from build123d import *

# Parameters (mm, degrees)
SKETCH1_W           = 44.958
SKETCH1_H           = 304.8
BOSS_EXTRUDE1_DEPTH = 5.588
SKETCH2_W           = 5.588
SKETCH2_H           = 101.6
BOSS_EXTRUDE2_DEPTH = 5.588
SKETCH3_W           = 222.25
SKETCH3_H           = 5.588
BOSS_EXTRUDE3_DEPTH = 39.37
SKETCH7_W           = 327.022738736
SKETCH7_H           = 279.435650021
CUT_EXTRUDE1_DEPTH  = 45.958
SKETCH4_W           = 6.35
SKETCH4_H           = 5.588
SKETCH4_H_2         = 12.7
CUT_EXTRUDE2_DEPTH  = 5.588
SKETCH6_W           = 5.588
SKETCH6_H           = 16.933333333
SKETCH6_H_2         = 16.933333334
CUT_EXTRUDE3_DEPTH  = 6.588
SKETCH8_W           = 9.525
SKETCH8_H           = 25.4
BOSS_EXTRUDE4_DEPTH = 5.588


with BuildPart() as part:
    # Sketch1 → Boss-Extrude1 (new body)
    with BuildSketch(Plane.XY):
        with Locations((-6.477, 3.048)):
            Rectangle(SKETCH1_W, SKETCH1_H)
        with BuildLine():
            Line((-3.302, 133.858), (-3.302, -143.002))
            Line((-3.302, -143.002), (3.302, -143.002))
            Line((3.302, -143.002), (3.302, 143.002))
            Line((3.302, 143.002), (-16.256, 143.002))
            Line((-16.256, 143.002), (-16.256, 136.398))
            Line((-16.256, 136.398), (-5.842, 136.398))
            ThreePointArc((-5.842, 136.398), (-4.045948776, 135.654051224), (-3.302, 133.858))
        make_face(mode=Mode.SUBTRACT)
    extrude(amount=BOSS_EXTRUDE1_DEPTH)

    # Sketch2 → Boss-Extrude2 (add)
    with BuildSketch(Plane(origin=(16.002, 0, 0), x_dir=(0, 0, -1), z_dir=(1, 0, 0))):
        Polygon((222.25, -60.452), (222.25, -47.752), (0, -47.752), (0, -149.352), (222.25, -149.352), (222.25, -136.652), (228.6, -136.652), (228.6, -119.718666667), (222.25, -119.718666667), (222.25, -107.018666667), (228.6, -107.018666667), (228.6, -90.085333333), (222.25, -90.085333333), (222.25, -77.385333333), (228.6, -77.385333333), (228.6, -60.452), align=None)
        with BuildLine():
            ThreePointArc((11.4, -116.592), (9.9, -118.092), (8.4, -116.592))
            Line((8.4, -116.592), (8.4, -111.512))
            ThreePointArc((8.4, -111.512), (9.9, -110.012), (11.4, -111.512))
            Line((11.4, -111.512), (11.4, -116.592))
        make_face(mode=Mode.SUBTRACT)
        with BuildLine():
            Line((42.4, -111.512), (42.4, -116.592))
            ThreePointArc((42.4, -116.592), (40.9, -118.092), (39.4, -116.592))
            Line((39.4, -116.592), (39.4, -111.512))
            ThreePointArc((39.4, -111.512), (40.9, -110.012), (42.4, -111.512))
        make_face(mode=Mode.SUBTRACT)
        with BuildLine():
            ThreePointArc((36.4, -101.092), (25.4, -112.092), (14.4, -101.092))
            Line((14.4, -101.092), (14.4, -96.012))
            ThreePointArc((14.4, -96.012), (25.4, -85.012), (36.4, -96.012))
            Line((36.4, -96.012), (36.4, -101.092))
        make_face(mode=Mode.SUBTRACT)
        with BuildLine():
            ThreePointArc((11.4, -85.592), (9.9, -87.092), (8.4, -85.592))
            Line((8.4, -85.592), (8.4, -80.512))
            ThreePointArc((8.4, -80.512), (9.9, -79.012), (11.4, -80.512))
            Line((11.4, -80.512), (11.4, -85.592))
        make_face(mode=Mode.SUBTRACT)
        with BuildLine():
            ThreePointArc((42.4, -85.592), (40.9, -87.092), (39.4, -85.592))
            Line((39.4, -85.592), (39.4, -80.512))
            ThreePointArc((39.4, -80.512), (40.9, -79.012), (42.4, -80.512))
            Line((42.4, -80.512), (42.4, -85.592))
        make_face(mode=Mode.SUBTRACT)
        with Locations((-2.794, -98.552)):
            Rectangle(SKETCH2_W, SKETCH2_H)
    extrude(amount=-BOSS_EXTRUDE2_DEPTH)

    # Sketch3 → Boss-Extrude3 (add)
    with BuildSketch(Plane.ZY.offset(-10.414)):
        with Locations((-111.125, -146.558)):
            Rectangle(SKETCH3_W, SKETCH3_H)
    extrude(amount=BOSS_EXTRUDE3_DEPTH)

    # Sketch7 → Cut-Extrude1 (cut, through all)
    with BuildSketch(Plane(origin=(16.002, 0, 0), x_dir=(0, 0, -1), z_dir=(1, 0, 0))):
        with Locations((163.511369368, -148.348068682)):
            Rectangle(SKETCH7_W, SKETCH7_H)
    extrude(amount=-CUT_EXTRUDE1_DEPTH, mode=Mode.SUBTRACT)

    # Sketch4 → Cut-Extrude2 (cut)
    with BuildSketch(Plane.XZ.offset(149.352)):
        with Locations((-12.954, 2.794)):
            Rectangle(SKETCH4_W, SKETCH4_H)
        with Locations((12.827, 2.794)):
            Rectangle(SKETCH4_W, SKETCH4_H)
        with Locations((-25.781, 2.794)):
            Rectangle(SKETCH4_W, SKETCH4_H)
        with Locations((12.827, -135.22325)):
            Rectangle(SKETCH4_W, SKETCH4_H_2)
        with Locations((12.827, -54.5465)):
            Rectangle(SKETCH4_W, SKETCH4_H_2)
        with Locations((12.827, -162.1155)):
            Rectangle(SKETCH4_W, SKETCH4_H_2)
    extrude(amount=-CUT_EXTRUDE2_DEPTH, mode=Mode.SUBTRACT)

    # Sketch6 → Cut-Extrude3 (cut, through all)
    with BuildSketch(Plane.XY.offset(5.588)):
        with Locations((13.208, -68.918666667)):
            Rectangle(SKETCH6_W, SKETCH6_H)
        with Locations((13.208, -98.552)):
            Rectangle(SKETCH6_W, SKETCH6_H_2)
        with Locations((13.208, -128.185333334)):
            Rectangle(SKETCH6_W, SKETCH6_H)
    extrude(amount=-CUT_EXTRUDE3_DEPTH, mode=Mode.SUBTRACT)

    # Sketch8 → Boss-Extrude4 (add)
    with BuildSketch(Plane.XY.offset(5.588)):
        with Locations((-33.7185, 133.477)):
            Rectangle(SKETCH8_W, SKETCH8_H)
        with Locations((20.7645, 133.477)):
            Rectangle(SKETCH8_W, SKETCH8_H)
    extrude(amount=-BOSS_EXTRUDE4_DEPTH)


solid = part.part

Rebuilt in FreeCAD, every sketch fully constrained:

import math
import FreeCAD as App
import Part
import Sketcher

V = App.Vector
Q = App.Units.Quantity

doc = App.newDocument("Part")
body = doc.addObject("PartDesign::Body", "Body")

# Sketch on XY plane
sketch1 = doc.addObject("Sketcher::SketchObject", "Sketch")
body.addObject(sketch1)
sketch1.AttachmentSupport = (doc.XY_Plane, [""])
sketch1.MapMode = "FlatFace"
sketch1.addGeometry([
    Part.LineSegment(V(-29, 155.4, 0), V(-29, -149.4, 0)),  # 0
    Part.LineSegment(V(-29, -149.4, 0), V(16, -149.4, 0)),  # 1
    Part.LineSegment(V(16, -149.4, 0), V(16, 155.4, 0)),  # 2
    Part.LineSegment(V(16, 155.4, 0), V(-29, 155.4, 0)),  # 3
    Part.LineSegment(V(-3.3, -143, 0), V(-3.3, 133.9, 0)),  # 4
    Part.ArcOfCircle(Part.Circle(V(-5.8, 133.9, 0), V(0, 0, 1), 2.5), math.radians(0), math.radians(90)),  # 5
    Part.LineSegment(V(-5.8, 136.4, 0), V(-16.3, 136.4, 0)),  # 6
    Part.LineSegment(V(-16.3, 136.4, 0), V(-16.3, 143, 0)),  # 7
    Part.LineSegment(V(-16.3, 143, 0), V(3.3, 143, 0)),  # 8
    Part.LineSegment(V(3.3, 143, 0), V(3.3, -143, 0)),  # 9
    Part.LineSegment(V(3.3, -143, 0), V(-3.3, -143, 0)),  # 10
], False)
sketch1.addConstraint([
    Sketcher.Constraint("Coincident", 0, 2, 1, 1),
    Sketcher.Constraint("Coincident", 1, 2, 2, 1),
    Sketcher.Constraint("Coincident", 2, 2, 3, 1),
    Sketcher.Constraint("Coincident", 3, 2, 0, 1),
    Sketcher.Constraint("Tangent", 4, 2, 5, 1),
    Sketcher.Constraint("Tangent", 5, 2, 6, 1),
    Sketcher.Constraint("Coincident", 6, 2, 7, 1),
    Sketcher.Constraint("Coincident", 7, 2, 8, 1),
    Sketcher.Constraint("Coincident", 8, 2, 9, 1),
    Sketcher.Constraint("Coincident", 9, 2, 10, 1),
    Sketcher.Constraint("Coincident", 10, 2, 4, 1),
    Sketcher.Constraint("Vertical", 0),
    Sketcher.Constraint("Horizontal", 1),
    Sketcher.Constraint("Vertical", 2),
    Sketcher.Constraint("Horizontal", 3),
    Sketcher.Constraint("Vertical", 4),
    Sketcher.Constraint("Horizontal", 6),
    Sketcher.Constraint("Vertical", 7),
    Sketcher.Constraint("Horizontal", 8),
    Sketcher.Constraint("Vertical", 9),
    Sketcher.Constraint("Horizontal", 10),
    Sketcher.Constraint("Symmetric", 8, 2, 10, 2, -1, 1),
    Sketcher.Constraint("Equal", 10, 7),
    Sketcher.Constraint("Radius", 5, Q("0.1 in")),
    Sketcher.Constraint("DistanceY", 0, 2, 0, 1, Q("12 in")),
    Sketcher.Constraint("DistanceY", 4, 1, 4, 2, Q("10.9 in")),
    Sketcher.Constraint("DistanceX", 1, 1, 1, 2, Q("1.77 in")),
    Sketcher.Constraint("DistanceX", 6, 2, 6, 1, Q("0.41 in")),
    Sketcher.Constraint("DistanceX", 8, 1, 8, 2, Q("0.77 in")),
    Sketcher.Constraint("DistanceX", 3, 2, 6, 2, Q("0.5 in")),
    Sketcher.Constraint("DistanceY", 0, 2, -1, 1, Q("5.88 in")),
])
pad1 = doc.addObject("PartDesign::Pad", "Pad")
body.addObject(pad1)
pad1.Profile = sketch1
pad1.Length = Q("0.22 in")

# Sketch on YZ plane
sketch2 = doc.addObject("Sketcher::SketchObject", "Sketch001")
body.addObject(sketch2)
sketch2.AttachmentSupport = (doc.YZ_Plane, [""])
sketch2.MapMode = "FlatFace"
sketch2.AttachmentOffset = App.Placement(V(0, 0, 0.63 * 25.4), App.Rotation())
sketch2.addGeometry([
    Part.LineSegment(V(-60.5, -222.2, 0), V(-47.8, -222.2, 0)),  # 0
    Part.LineSegment(V(-47.8, -222.2, 0), V(-47.8, 5.6, 0)),  # 1
    Part.LineSegment(V(-47.8, 5.6, 0), V(-149.4, 5.6, 0)),  # 2
    Part.LineSegment(V(-149.4, 5.6, 0), V(-149.4, -222.2, 0)),  # 3
    Part.LineSegment(V(-149.4, -222.2, 0), V(-136.7, -222.2, 0)),  # 4
    Part.LineSegment(V(-136.7, -222.2, 0), V(-136.7, -228.6, 0)),  # 5
    Part.LineSegment(V(-136.7, -228.6, 0), V(-119.7, -228.6, 0)),  # 6
    Part.LineSegment(V(-119.7, -228.6, 0), V(-119.7, -222.2, 0)),  # 7
    Part.LineSegment(V(-119.7, -222.2, 0), V(-107, -222.2, 0)),  # 8
    Part.LineSegment(V(-107, -222.2, 0), V(-107, -228.6, 0)),  # 9
    Part.LineSegment(V(-107, -228.6, 0), V(-90.1, -228.6, 0)),  # 10
    Part.LineSegment(V(-90.1, -228.6, 0), V(-90.1, -222.2, 0)),  # 11
    Part.LineSegment(V(-90.1, -222.2, 0), V(-77.4, -222.2, 0)),  # 12
    Part.LineSegment(V(-77.4, -222.2, 0), V(-77.4, -228.6, 0)),  # 13
    Part.LineSegment(V(-77.4, -228.6, 0), V(-60.5, -228.6, 0)),  # 14
    Part.LineSegment(V(-60.5, -228.6, 0), V(-60.5, -222.2, 0)),  # 15
    Part.LineSegment(V(-111.5, -11.4, 0), V(-116.6, -11.4, 0)),  # 16
    Part.ArcOfCircle(Part.Circle(V(-116.6, -9.9, 0), V(0, 0, 1), 1.5), math.radians(90), math.radians(270)),  # 17
    Part.LineSegment(V(-116.6, -8.4, 0), V(-111.5, -8.4, 0)),  # 18
    Part.ArcOfCircle(Part.Circle(V(-111.5, -9.9, 0), V(0, 0, 1), 1.5), math.radians(-90), math.radians(90)),  # 19
    Part.ArcOfCircle(Part.Circle(V(-111.5, -40.9, 0), V(0, 0, 1), 1.5), math.radians(-90), math.radians(90)),  # 20
    Part.LineSegment(V(-111.5, -42.4, 0), V(-116.6, -42.4, 0)),  # 21
    Part.ArcOfCircle(Part.Circle(V(-116.6, -40.9, 0), V(0, 0, 1), 1.5), math.radians(90), math.radians(270)),  # 22
    Part.LineSegment(V(-116.6, -39.4, 0), V(-111.5, -39.4, 0)),  # 23
    Part.LineSegment(V(-96, -36.4, 0), V(-101.1, -36.4, 0)),  # 24
    Part.ArcOfCircle(Part.Circle(V(-101.1, -25.4, 0), V(0, 0, 1), 11), math.radians(90), math.radians(270)),  # 25
    Part.LineSegment(V(-101.1, -14.4, 0), V(-96, -14.4, 0)),  # 26
    Part.ArcOfCircle(Part.Circle(V(-96, -25.4, 0), V(0, 0, 1), 11), math.radians(-90), math.radians(90)),  # 27
    Part.LineSegment(V(-80.5, -11.4, 0), V(-85.6, -11.4, 0)),  # 28
    Part.ArcOfCircle(Part.Circle(V(-85.6, -9.9, 0), V(0, 0, 1), 1.5), math.radians(90), math.radians(270)),  # 29
    Part.LineSegment(V(-85.6, -8.4, 0), V(-80.5, -8.4, 0)),  # 30
    Part.ArcOfCircle(Part.Circle(V(-80.5, -9.9, 0), V(0, 0, 1), 1.5), math.radians(-90), math.radians(90)),  # 31
    Part.LineSegment(V(-80.5, -42.4, 0), V(-85.6, -42.4, 0)),  # 32
    Part.ArcOfCircle(Part.Circle(V(-85.6, -40.9, 0), V(0, 0, 1), 1.5), math.radians(90), math.radians(270)),  # 33
    Part.LineSegment(V(-85.6, -39.4, 0), V(-80.5, -39.4, 0)),  # 34
    Part.ArcOfCircle(Part.Circle(V(-80.5, -40.9, 0), V(0, 0, 1), 1.5), math.radians(-90), math.radians(90)),  # 35
], False)
sketch2.addConstraint([
    Sketcher.Constraint("Coincident", 0, 2, 1, 1),
    Sketcher.Constraint("Coincident", 1, 2, 2, 1),
    Sketcher.Constraint("Coincident", 2, 2, 3, 1),
    Sketcher.Constraint("Coincident", 3, 2, 4, 1),
    Sketcher.Constraint("Coincident", 4, 2, 5, 1),
    Sketcher.Constraint("Coincident", 5, 2, 6, 1),
    Sketcher.Constraint("Coincident", 6, 2, 7, 1),
    Sketcher.Constraint("Coincident", 7, 2, 8, 1),
    Sketcher.Constraint("Coincident", 8, 2, 9, 1),
    Sketcher.Constraint("Coincident", 9, 2, 10, 1),
    Sketcher.Constraint("Coincident", 10, 2, 11, 1),
    Sketcher.Constraint("Coincident", 11, 2, 12, 1),
    Sketcher.Constraint("Coincident", 12, 2, 13, 1),
    Sketcher.Constraint("Coincident", 13, 2, 14, 1),
    Sketcher.Constraint("Coincident", 14, 2, 15, 1),
    Sketcher.Constraint("Coincident", 15, 2, 0, 1),
    Sketcher.Constraint("Tangent", 16, 2, 17, 2),
    Sketcher.Constraint("Tangent", 17, 1, 18, 1),
    Sketcher.Constraint("Tangent", 18, 2, 19, 2),
    Sketcher.Constraint("Tangent", 19, 1, 16, 1),
    Sketcher.Constraint("Tangent", 20, 1, 21, 1),
    Sketcher.Constraint("Tangent", 21, 2, 22, 2),
    Sketcher.Constraint("Tangent", 22, 1, 23, 1),
    Sketcher.Constraint("Tangent", 23, 2, 20, 2),
    Sketcher.Constraint("Tangent", 24, 2, 25, 2),
    Sketcher.Constraint("Tangent", 25, 1, 26, 1),
    Sketcher.Constraint("Tangent", 26, 2, 27, 2),
    Sketcher.Constraint("Tangent", 27, 1, 24, 1),
    Sketcher.Constraint("Tangent", 28, 2, 29, 2),
    Sketcher.Constraint("Tangent", 29, 1, 30, 1),
    Sketcher.Constraint("Tangent", 30, 2, 31, 2),
    Sketcher.Constraint("Tangent", 31, 1, 28, 1),
    Sketcher.Constraint("Tangent", 32, 2, 33, 2),
    Sketcher.Constraint("Tangent", 33, 1, 34, 1),
    Sketcher.Constraint("Tangent", 34, 2, 35, 2),
    Sketcher.Constraint("Tangent", 35, 1, 32, 1),
    Sketcher.Constraint("Horizontal", 0),
    Sketcher.Constraint("Vertical", 1),
    Sketcher.Constraint("Horizontal", 2),
    Sketcher.Constraint("Vertical", 3),
    Sketcher.Constraint("Horizontal", 4),
    Sketcher.Constraint("Vertical", 5),
    Sketcher.Constraint("Horizontal", 6),
    Sketcher.Constraint("Vertical", 7),
    Sketcher.Constraint("Horizontal", 8),
    Sketcher.Constraint("Vertical", 9),
    Sketcher.Constraint("Horizontal", 10),
    Sketcher.Constraint("Vertical", 11),
    Sketcher.Constraint("Horizontal", 12),
    Sketcher.Constraint("Vertical", 13),
    Sketcher.Constraint("Horizontal", 14),
    Sketcher.Constraint("Vertical", 15),
    Sketcher.Constraint("Horizontal", 16),
    Sketcher.Constraint("Horizontal", 18),
    Sketcher.Constraint("Horizontal", 21),
    Sketcher.Constraint("Horizontal", 23),
    Sketcher.Constraint("Horizontal", 24),
    Sketcher.Constraint("Horizontal", 26),
    Sketcher.Constraint("Horizontal", 28),
    Sketcher.Constraint("Horizontal", 30),
    Sketcher.Constraint("Horizontal", 32),
    Sketcher.Constraint("Horizontal", 34),
    Sketcher.Constraint("Equal", 19, 20),
    Sketcher.Constraint("Equal", 22, 29),
    Sketcher.Constraint("Equal", 31, 33),
    Sketcher.Constraint("Horizontal", 19, 3, 29, 3),
    Sketcher.Constraint("Horizontal", 22, 3, 33, 3),
    Sketcher.Constraint("Horizontal", 0, 2, 3, 2),
    Sketcher.Constraint("Horizontal", 4, 2, 7, 2),
    Sketcher.Constraint("Horizontal", 6, 2, 9, 2),
    Sketcher.Constraint("Horizontal", 8, 2, 11, 2),
    Sketcher.Constraint("Horizontal", 10, 2, 13, 2),
    Sketcher.Constraint("Vertical", 19, 3, 20, 3),
    Sketcher.Constraint("Vertical", 17, 3, 22, 3),
    Sketcher.Constraint("Vertical", 29, 3, 33, 3),
    Sketcher.Constraint("Vertical", 31, 3, 35, 3),
    Sketcher.Constraint("Equal", 0, 4),
    Sketcher.Constraint("Equal", 4, 8),
    Sketcher.Constraint("Equal", 6, 10),
    Sketcher.Constraint("Equal", 8, 12),
    Sketcher.Constraint("Equal", 10, 14),
    Sketcher.Constraint("Equal", 23, 24),
    Sketcher.Constraint("Equal", 26, 28),
    Sketcher.Constraint("DistanceX", 2, 2, 2, 1, Q("4 in")),
    Sketcher.Constraint("DistanceX", 0, 1, 0, 2, Q("0.5 in")),
    Sketcher.Constraint("DistanceX", 16, 2, 16, 1, Q("0.2 in")),
    Sketcher.Constraint("DistanceY", 25, 3, -1, 1, Q("1 in")),
    Sketcher.Constraint("DistanceY", 5, 2, -1, 1, Q("9 in")),
    Sketcher.Constraint("DistanceY", 1, 1, 1, 2, Q("8.97 in")),
    Sketcher.Constraint("DistanceY", 5, 2, 5, 1, Q("0.25 in")),
    Sketcher.Constraint("DistanceX", 27, 3, 0, 2, Q("1.9 in")),
    Sketcher.Constraint("DistanceX", 25, 3, -1, 1, Q("3.98 in")),
    Sketcher.Constraint("Radius", 17, 1.5),
    Sketcher.Constraint("Radius", 25, 11.0),
    Sketcher.Constraint("DistanceX", 17, 3, -1, 1, 116.592),
    Sketcher.Constraint("DistanceY", 17, 3, -1, 1, 9.9),
    Sketcher.Constraint("DistanceY", 20, 3, -1, 1, 40.9),
    Sketcher.Constraint("DistanceX", 29, 3, -1, 1, 85.592),
])
pad2 = doc.addObject("PartDesign::Pad", "Pad001")
body.addObject(pad2)
pad2.Profile = sketch2
pad2.Length = Q("0.22 in")
pad2.Reversed = True

# Sketch on YZ plane
sketch3 = doc.addObject("Sketcher::SketchObject", "Sketch002")
body.addObject(sketch3)
sketch3.AttachmentSupport = (doc.YZ_Plane, [""])
sketch3.MapMode = "FlatFace"
sketch3.AttachmentOffset = App.Placement(V(0, 0, 0.41 * 25.4), App.Rotation())
sketch3.addGeometry([
    Part.LineSegment(V(-144, -222, 0), V(-149, -222, 0)),
    Part.LineSegment(V(-149, -222, 0), V(-149, 0, 0)),
    Part.LineSegment(V(-149, 0, 0), V(-144, 0, 0)),
    Part.LineSegment(V(-144, 0, 0), V(-144, -222, 0)),
], False)
sketch3.addConstraint([
    Sketcher.Constraint("Coincident", 0, 2, 1, 1),
    Sketcher.Constraint("Coincident", 1, 2, 2, 1),
    Sketcher.Constraint("Coincident", 2, 2, 3, 1),
    Sketcher.Constraint("Coincident", 3, 2, 0, 1),
    Sketcher.Constraint("Horizontal", 0),
    Sketcher.Constraint("Vertical", 1),
    Sketcher.Constraint("Horizontal", 2),
    Sketcher.Constraint("Vertical", 3),
    Sketcher.Constraint("PointOnObject", 1, 2, -1),
    Sketcher.Constraint("DistanceX", 0, 2, 0, 1, Q("0.22 in")),
    Sketcher.Constraint("DistanceY", 1, 1, 1, 2, Q("8.75 in")),
    Sketcher.Constraint("DistanceX", 0, 2, -1, 1, Q("5.88 in")),
])
pad3 = doc.addObject("PartDesign::Pad", "Pad002")
body.addObject(pad3)
pad3.Profile = sketch3
pad3.Length = Q("1.55 in")
pad3.Reversed = True

# Sketch on YZ plane
sketch4 = doc.addObject("Sketcher::SketchObject", "Sketch003")
body.addObject(sketch4)
sketch4.AttachmentSupport = (doc.YZ_Plane, [""])
sketch4.MapMode = "FlatFace"
sketch4.AttachmentOffset = App.Placement(V(0, 0, 0.63 * 25.4), App.Rotation())
sketch4.addGeometry([
    Part.LineSegment(V(-9, 0, 0), V(-288, 0, 0)),
    Part.LineSegment(V(-288, 0, 0), V(-288, -327, 0)),
    Part.LineSegment(V(-288, -327, 0), V(-9, -327, 0)),
    Part.LineSegment(V(-9, -327, 0), V(-9, 0, 0)),
], False)
sketch4.addConstraint([
    Sketcher.Constraint("Coincident", 0, 2, 1, 1),
    Sketcher.Constraint("Coincident", 1, 2, 2, 1),
    Sketcher.Constraint("Coincident", 2, 2, 3, 1),
    Sketcher.Constraint("Coincident", 3, 2, 0, 1),
    Sketcher.Constraint("Horizontal", 0),
    Sketcher.Constraint("Vertical", 1),
    Sketcher.Constraint("Horizontal", 2),
    Sketcher.Constraint("Vertical", 3),
    Sketcher.Constraint("PointOnObject", 0, 2, -1),
    Sketcher.Constraint("DistanceX", 0, 2, 0, 1, 279.43565),
    Sketcher.Constraint("DistanceY", 1, 2, 1, 1, 327.022739),
    Sketcher.Constraint("DistanceX", 0, 2, -1, 1, 288.065894),
])
pocket1 = doc.addObject("PartDesign::Pocket", "Pocket")
body.addObject(pocket1)
pocket1.Profile = sketch4
pocket1.Type = "ThroughAll"

# Sketch on XZ plane
sketch5 = doc.addObject("Sketcher::SketchObject", "Sketch004")
body.addObject(sketch5)
sketch5.AttachmentSupport = (doc.XZ_Plane, [""])
sketch5.MapMode = "FlatFace"
sketch5.AttachmentOffset = App.Placement(V(0, 0, 5.88 * 25.4), App.Rotation())
sketch5.addGeometry([
    Part.LineSegment(V(-16, 6, 0), V(-16, 0, 0)),  # 0
    Part.LineSegment(V(-16, 0, 0), V(-10, 0, 0)),  # 1
    Part.LineSegment(V(-10, 0, 0), V(-10, 6, 0)),  # 2
    Part.LineSegment(V(-10, 6, 0), V(-16, 6, 0)),  # 3
    Part.LineSegment(V(10, 6, 0), V(10, 0, 0)),  # 4
    Part.LineSegment(V(10, 0, 0), V(16, 0, 0)),  # 5
    Part.LineSegment(V(16, 0, 0), V(16, 6, 0)),  # 6
    Part.LineSegment(V(16, 6, 0), V(10, 6, 0)),  # 7
    Part.LineSegment(V(-29, 6, 0), V(-29, 0, 0)),  # 8
    Part.LineSegment(V(-29, 0, 0), V(-23, 0, 0)),  # 9
    Part.LineSegment(V(-23, 0, 0), V(-23, 6, 0)),  # 10
    Part.LineSegment(V(-23, 6, 0), V(-29, 6, 0)),  # 11
    Part.LineSegment(V(10, -129, 0), V(10, -142, 0)),  # 12
    Part.LineSegment(V(10, -142, 0), V(16, -142, 0)),  # 13
    Part.LineSegment(V(16, -142, 0), V(16, -129, 0)),  # 14
    Part.LineSegment(V(16, -129, 0), V(10, -129, 0)),  # 15
    Part.LineSegment(V(10, -48, 0), V(10, -61, 0)),  # 16
    Part.LineSegment(V(10, -61, 0), V(16, -61, 0)),  # 17
    Part.LineSegment(V(16, -61, 0), V(16, -48, 0)),  # 18
    Part.LineSegment(V(16, -48, 0), V(10, -48, 0)),  # 19
    Part.LineSegment(V(10, -156, 0), V(10, -168, 0)),  # 20
    Part.LineSegment(V(10, -168, 0), V(16, -168, 0)),  # 21
    Part.LineSegment(V(16, -168, 0), V(16, -156, 0)),  # 22
    Part.LineSegment(V(16, -156, 0), V(10, -156, 0)),  # 23
], False)
sketch5.addConstraint([
    Sketcher.Constraint("Coincident", 0, 2, 1, 1),
    Sketcher.Constraint("Coincident", 1, 2, 2, 1),
    Sketcher.Constraint("Coincident", 2, 2, 3, 1),
    Sketcher.Constraint("Coincident", 3, 2, 0, 1),
    Sketcher.Constraint("Coincident", 4, 2, 5, 1),
    Sketcher.Constraint("Coincident", 5, 2, 6, 1),
    Sketcher.Constraint("Coincident", 6, 2, 7, 1),
    Sketcher.Constraint("Coincident", 7, 2, 4, 1),
    Sketcher.Constraint("Coincident", 8, 2, 9, 1),
    Sketcher.Constraint("Coincident", 9, 2, 10, 1),
    Sketcher.Constraint("Coincident", 10, 2, 11, 1),
    Sketcher.Constraint("Coincident", 11, 2, 8, 1),
    Sketcher.Constraint("Coincident", 12, 2, 13, 1),
    Sketcher.Constraint("Coincident", 13, 2, 14, 1),
    Sketcher.Constraint("Coincident", 14, 2, 15, 1),
    Sketcher.Constraint("Coincident", 15, 2, 12, 1),
    Sketcher.Constraint("Coincident", 16, 2, 17, 1),
    Sketcher.Constraint("Coincident", 17, 2, 18, 1),
    Sketcher.Constraint("Coincident", 18, 2, 19, 1),
    Sketcher.Constraint("Coincident", 19, 2, 16, 1),
    Sketcher.Constraint("Coincident", 20, 2, 21, 1),
    Sketcher.Constraint("Coincident", 21, 2, 22, 1),
    Sketcher.Constraint("Coincident", 22, 2, 23, 1),
    Sketcher.Constraint("Coincident", 23, 2, 20, 1),
    Sketcher.Constraint("Vertical", 0),
    Sketcher.Constraint("Horizontal", 1),
    Sketcher.Constraint("Vertical", 2),
    Sketcher.Constraint("Horizontal", 3),
    Sketcher.Constraint("Vertical", 4),
    Sketcher.Constraint("Horizontal", 5),
    Sketcher.Constraint("Vertical", 6),
    Sketcher.Constraint("Horizontal", 7),
    Sketcher.Constraint("Vertical", 8),
    Sketcher.Constraint("Horizontal", 9),
    Sketcher.Constraint("Vertical", 10),
    Sketcher.Constraint("Horizontal", 11),
    Sketcher.Constraint("Vertical", 12),
    Sketcher.Constraint("Horizontal", 13),
    Sketcher.Constraint("Vertical", 14),
    Sketcher.Constraint("Horizontal", 15),
    Sketcher.Constraint("Vertical", 16),
    Sketcher.Constraint("Horizontal", 17),
    Sketcher.Constraint("Vertical", 18),
    Sketcher.Constraint("Horizontal", 19),
    Sketcher.Constraint("Vertical", 20),
    Sketcher.Constraint("Horizontal", 21),
    Sketcher.Constraint("Vertical", 22),
    Sketcher.Constraint("Horizontal", 23),
    Sketcher.Constraint("PointOnObject", 0, 2, -1),
    Sketcher.Constraint("PointOnObject", 4, 2, -1),
    Sketcher.Constraint("PointOnObject", 8, 2, -1),
    Sketcher.Constraint("Horizontal", 3, 2, 6, 2),
    Sketcher.Constraint("Horizontal", 7, 2, 10, 2),
    Sketcher.Constraint("Vertical", 7, 2, 12, 2),
    Sketcher.Constraint("Vertical", 6, 2, 13, 2),
    Sketcher.Constraint("Vertical", 15, 2, 16, 2),
    Sketcher.Constraint("Vertical", 14, 2, 17, 2),
    Sketcher.Constraint("Vertical", 19, 2, 20, 2),
    Sketcher.Constraint("Vertical", 18, 2, 21, 2),
    Sketcher.Constraint("Equal", 3, 5),
    Sketcher.Constraint("Equal", 7, 9),
    Sketcher.Constraint("Equal", 14, 16),
    Sketcher.Constraint("Equal", 18, 20),
    Sketcher.Constraint("DistanceY", 12, 2, 12, 1, Q("0.5 in")),
    Sketcher.Constraint("DistanceX", 1, 1, 1, 2, Q("0.25 in")),
    Sketcher.Constraint("DistanceY", 0, 2, 0, 1, Q("0.22 in")),
    Sketcher.Constraint("DistanceX", -1, 1, 4, 2, Q("0.38 in")),
    Sketcher.Constraint("DistanceX", 8, 2, -1, 1, Q("1.14 in")),
    Sketcher.Constraint("DistanceX", 0, 2, -1, 1, Q("0.635 in")),
    Sketcher.Constraint("DistanceY", 20, 2, 16, 2, Q("4.235 in")),
    Sketcher.Constraint("DistanceY", 16, 2, -1, 1, Q("2.3975 in")),
    Sketcher.Constraint("DistanceY", 12, 2, -1, 1, 141.57325),
])
pocket2 = doc.addObject("PartDesign::Pocket", "Pocket001")
body.addObject(pocket2)
pocket2.Profile = sketch5
pocket2.Length = Q("0.22 in")

# Sketch on XY plane
sketch6 = doc.addObject("Sketcher::SketchObject", "Sketch005")
body.addObject(sketch6)
sketch6.AttachmentSupport = (doc.XY_Plane, [""])
sketch6.MapMode = "FlatFace"
sketch6.AttachmentOffset = App.Placement(V(0, 0, 0.22 * 25.4), App.Rotation())
sketch6.addGeometry([
    Part.LineSegment(V(10, -60, 0), V(10, -77, 0)),  # 0
    Part.LineSegment(V(10, -77, 0), V(16, -77, 0)),  # 1
    Part.LineSegment(V(16, -77, 0), V(16, -60, 0)),  # 2
    Part.LineSegment(V(16, -60, 0), V(10, -60, 0)),  # 3
    Part.LineSegment(V(10, -90, 0), V(10, -107, 0)),  # 4
    Part.LineSegment(V(10, -107, 0), V(16, -107, 0)),  # 5
    Part.LineSegment(V(16, -107, 0), V(16, -90, 0)),  # 6
    Part.LineSegment(V(16, -90, 0), V(10, -90, 0)),  # 7
    Part.LineSegment(V(10, -120, 0), V(10, -137, 0)),  # 8
    Part.LineSegment(V(10, -137, 0), V(16, -137, 0)),  # 9
    Part.LineSegment(V(16, -137, 0), V(16, -120, 0)),  # 10
    Part.LineSegment(V(16, -120, 0), V(10, -120, 0)),  # 11
], False)
sketch6.addConstraint([
    Sketcher.Constraint("Coincident", 0, 2, 1, 1),
    Sketcher.Constraint("Coincident", 1, 2, 2, 1),
    Sketcher.Constraint("Coincident", 2, 2, 3, 1),
    Sketcher.Constraint("Coincident", 3, 2, 0, 1),
    Sketcher.Constraint("Coincident", 4, 2, 5, 1),
    Sketcher.Constraint("Coincident", 5, 2, 6, 1),
    Sketcher.Constraint("Coincident", 6, 2, 7, 1),
    Sketcher.Constraint("Coincident", 7, 2, 4, 1),
    Sketcher.Constraint("Coincident", 8, 2, 9, 1),
    Sketcher.Constraint("Coincident", 9, 2, 10, 1),
    Sketcher.Constraint("Coincident", 10, 2, 11, 1),
    Sketcher.Constraint("Coincident", 11, 2, 8, 1),
    Sketcher.Constraint("Vertical", 0),
    Sketcher.Constraint("Horizontal", 1),
    Sketcher.Constraint("Vertical", 2),
    Sketcher.Constraint("Horizontal", 3),
    Sketcher.Constraint("Vertical", 4),
    Sketcher.Constraint("Horizontal", 5),
    Sketcher.Constraint("Vertical", 6),
    Sketcher.Constraint("Horizontal", 7),
    Sketcher.Constraint("Vertical", 8),
    Sketcher.Constraint("Horizontal", 9),
    Sketcher.Constraint("Vertical", 10),
    Sketcher.Constraint("Horizontal", 11),
    Sketcher.Constraint("Vertical", 3, 2, 4, 2),
    Sketcher.Constraint("Vertical", 2, 2, 5, 2),
    Sketcher.Constraint("Vertical", 7, 2, 8, 2),
    Sketcher.Constraint("Vertical", 6, 2, 9, 2),
    Sketcher.Constraint("Equal", 2, 4),
    Sketcher.Constraint("Equal", 6, 8),
    Sketcher.Constraint("DistanceX", 1, 1, 1, 2, Q("0.22 in")),
    Sketcher.Constraint("DistanceY", 6, 2, 1, 2, Q("0.5 in")),
    Sketcher.Constraint("DistanceY", 10, 2, 5, 2, Q("0.5 in")),
    Sketcher.Constraint("DistanceX", -1, 1, 0, 2, Q("0.41 in")),
    Sketcher.Constraint("DistanceY", 2, 2, -1, 1, Q("2.38 in")),
    Sketcher.Constraint("DistanceY", 8, 2, -1, 1, Q("5.38 in")),
])
pocket3 = doc.addObject("PartDesign::Pocket", "Pocket002")
body.addObject(pocket3)
pocket3.Profile = sketch6
pocket3.Type = "ThroughAll"

# Sketch on XY plane
sketch7 = doc.addObject("Sketcher::SketchObject", "Sketch006")
body.addObject(sketch7)
sketch7.AttachmentSupport = (doc.XY_Plane, [""])
sketch7.MapMode = "FlatFace"
sketch7.AttachmentOffset = App.Placement(V(0, 0, 0.22 * 25.4), App.Rotation())
sketch7.addGeometry([
    Part.LineSegment(V(-38, 146, 0), V(-38, 121, 0)),  # 0
    Part.LineSegment(V(-38, 121, 0), V(-29, 121, 0)),  # 1
    Part.LineSegment(V(-29, 121, 0), V(-29, 146, 0)),  # 2
    Part.LineSegment(V(-29, 146, 0), V(-38, 146, 0)),  # 3
    Part.LineSegment(V(16, 146, 0), V(16, 121, 0)),  # 4
    Part.LineSegment(V(16, 121, 0), V(26, 121, 0)),  # 5
    Part.LineSegment(V(26, 121, 0), V(26, 146, 0)),  # 6
    Part.LineSegment(V(26, 146, 0), V(16, 146, 0)),  # 7
], False)
sketch7.addConstraint([
    Sketcher.Constraint("Coincident", 0, 2, 1, 1),
    Sketcher.Constraint("Coincident", 1, 2, 2, 1),
    Sketcher.Constraint("Coincident", 2, 2, 3, 1),
    Sketcher.Constraint("Coincident", 3, 2, 0, 1),
    Sketcher.Constraint("Coincident", 4, 2, 5, 1),
    Sketcher.Constraint("Coincident", 5, 2, 6, 1),
    Sketcher.Constraint("Coincident", 6, 2, 7, 1),
    Sketcher.Constraint("Coincident", 7, 2, 4, 1),
    Sketcher.Constraint("Vertical", 0),
    Sketcher.Constraint("Horizontal", 1),
    Sketcher.Constraint("Vertical", 2),
    Sketcher.Constraint("Horizontal", 3),
    Sketcher.Constraint("Vertical", 4),
    Sketcher.Constraint("Horizontal", 5),
    Sketcher.Constraint("Vertical", 6),
    Sketcher.Constraint("Horizontal", 7),
    Sketcher.Constraint("Horizontal", 1, 2, 4, 2),
    Sketcher.Constraint("Horizontal", 3, 2, 6, 2),
    Sketcher.Constraint("Equal", 3, 5),
    Sketcher.Constraint("DistanceY", 0, 2, 0, 1, Q("1 in")),
    Sketcher.Constraint("DistanceX", 1, 1, 1, 2, Q("0.375 in")),
    Sketcher.Constraint("DistanceX", 1, 2, -1, 1, Q("1.14 in")),
    Sketcher.Constraint("DistanceX", -1, 1, 4, 2, Q("0.63 in")),
    Sketcher.Constraint("DistanceY", -1, 1, 0, 2, Q("4.755 in")),
])
pad4 = doc.addObject("PartDesign::Pad", "Pad003")
body.addObject(pad4)
pad4.Profile = sketch7
pad4.Length = Q("0.22 in")
pad4.Reversed = True

doc.recompute()
